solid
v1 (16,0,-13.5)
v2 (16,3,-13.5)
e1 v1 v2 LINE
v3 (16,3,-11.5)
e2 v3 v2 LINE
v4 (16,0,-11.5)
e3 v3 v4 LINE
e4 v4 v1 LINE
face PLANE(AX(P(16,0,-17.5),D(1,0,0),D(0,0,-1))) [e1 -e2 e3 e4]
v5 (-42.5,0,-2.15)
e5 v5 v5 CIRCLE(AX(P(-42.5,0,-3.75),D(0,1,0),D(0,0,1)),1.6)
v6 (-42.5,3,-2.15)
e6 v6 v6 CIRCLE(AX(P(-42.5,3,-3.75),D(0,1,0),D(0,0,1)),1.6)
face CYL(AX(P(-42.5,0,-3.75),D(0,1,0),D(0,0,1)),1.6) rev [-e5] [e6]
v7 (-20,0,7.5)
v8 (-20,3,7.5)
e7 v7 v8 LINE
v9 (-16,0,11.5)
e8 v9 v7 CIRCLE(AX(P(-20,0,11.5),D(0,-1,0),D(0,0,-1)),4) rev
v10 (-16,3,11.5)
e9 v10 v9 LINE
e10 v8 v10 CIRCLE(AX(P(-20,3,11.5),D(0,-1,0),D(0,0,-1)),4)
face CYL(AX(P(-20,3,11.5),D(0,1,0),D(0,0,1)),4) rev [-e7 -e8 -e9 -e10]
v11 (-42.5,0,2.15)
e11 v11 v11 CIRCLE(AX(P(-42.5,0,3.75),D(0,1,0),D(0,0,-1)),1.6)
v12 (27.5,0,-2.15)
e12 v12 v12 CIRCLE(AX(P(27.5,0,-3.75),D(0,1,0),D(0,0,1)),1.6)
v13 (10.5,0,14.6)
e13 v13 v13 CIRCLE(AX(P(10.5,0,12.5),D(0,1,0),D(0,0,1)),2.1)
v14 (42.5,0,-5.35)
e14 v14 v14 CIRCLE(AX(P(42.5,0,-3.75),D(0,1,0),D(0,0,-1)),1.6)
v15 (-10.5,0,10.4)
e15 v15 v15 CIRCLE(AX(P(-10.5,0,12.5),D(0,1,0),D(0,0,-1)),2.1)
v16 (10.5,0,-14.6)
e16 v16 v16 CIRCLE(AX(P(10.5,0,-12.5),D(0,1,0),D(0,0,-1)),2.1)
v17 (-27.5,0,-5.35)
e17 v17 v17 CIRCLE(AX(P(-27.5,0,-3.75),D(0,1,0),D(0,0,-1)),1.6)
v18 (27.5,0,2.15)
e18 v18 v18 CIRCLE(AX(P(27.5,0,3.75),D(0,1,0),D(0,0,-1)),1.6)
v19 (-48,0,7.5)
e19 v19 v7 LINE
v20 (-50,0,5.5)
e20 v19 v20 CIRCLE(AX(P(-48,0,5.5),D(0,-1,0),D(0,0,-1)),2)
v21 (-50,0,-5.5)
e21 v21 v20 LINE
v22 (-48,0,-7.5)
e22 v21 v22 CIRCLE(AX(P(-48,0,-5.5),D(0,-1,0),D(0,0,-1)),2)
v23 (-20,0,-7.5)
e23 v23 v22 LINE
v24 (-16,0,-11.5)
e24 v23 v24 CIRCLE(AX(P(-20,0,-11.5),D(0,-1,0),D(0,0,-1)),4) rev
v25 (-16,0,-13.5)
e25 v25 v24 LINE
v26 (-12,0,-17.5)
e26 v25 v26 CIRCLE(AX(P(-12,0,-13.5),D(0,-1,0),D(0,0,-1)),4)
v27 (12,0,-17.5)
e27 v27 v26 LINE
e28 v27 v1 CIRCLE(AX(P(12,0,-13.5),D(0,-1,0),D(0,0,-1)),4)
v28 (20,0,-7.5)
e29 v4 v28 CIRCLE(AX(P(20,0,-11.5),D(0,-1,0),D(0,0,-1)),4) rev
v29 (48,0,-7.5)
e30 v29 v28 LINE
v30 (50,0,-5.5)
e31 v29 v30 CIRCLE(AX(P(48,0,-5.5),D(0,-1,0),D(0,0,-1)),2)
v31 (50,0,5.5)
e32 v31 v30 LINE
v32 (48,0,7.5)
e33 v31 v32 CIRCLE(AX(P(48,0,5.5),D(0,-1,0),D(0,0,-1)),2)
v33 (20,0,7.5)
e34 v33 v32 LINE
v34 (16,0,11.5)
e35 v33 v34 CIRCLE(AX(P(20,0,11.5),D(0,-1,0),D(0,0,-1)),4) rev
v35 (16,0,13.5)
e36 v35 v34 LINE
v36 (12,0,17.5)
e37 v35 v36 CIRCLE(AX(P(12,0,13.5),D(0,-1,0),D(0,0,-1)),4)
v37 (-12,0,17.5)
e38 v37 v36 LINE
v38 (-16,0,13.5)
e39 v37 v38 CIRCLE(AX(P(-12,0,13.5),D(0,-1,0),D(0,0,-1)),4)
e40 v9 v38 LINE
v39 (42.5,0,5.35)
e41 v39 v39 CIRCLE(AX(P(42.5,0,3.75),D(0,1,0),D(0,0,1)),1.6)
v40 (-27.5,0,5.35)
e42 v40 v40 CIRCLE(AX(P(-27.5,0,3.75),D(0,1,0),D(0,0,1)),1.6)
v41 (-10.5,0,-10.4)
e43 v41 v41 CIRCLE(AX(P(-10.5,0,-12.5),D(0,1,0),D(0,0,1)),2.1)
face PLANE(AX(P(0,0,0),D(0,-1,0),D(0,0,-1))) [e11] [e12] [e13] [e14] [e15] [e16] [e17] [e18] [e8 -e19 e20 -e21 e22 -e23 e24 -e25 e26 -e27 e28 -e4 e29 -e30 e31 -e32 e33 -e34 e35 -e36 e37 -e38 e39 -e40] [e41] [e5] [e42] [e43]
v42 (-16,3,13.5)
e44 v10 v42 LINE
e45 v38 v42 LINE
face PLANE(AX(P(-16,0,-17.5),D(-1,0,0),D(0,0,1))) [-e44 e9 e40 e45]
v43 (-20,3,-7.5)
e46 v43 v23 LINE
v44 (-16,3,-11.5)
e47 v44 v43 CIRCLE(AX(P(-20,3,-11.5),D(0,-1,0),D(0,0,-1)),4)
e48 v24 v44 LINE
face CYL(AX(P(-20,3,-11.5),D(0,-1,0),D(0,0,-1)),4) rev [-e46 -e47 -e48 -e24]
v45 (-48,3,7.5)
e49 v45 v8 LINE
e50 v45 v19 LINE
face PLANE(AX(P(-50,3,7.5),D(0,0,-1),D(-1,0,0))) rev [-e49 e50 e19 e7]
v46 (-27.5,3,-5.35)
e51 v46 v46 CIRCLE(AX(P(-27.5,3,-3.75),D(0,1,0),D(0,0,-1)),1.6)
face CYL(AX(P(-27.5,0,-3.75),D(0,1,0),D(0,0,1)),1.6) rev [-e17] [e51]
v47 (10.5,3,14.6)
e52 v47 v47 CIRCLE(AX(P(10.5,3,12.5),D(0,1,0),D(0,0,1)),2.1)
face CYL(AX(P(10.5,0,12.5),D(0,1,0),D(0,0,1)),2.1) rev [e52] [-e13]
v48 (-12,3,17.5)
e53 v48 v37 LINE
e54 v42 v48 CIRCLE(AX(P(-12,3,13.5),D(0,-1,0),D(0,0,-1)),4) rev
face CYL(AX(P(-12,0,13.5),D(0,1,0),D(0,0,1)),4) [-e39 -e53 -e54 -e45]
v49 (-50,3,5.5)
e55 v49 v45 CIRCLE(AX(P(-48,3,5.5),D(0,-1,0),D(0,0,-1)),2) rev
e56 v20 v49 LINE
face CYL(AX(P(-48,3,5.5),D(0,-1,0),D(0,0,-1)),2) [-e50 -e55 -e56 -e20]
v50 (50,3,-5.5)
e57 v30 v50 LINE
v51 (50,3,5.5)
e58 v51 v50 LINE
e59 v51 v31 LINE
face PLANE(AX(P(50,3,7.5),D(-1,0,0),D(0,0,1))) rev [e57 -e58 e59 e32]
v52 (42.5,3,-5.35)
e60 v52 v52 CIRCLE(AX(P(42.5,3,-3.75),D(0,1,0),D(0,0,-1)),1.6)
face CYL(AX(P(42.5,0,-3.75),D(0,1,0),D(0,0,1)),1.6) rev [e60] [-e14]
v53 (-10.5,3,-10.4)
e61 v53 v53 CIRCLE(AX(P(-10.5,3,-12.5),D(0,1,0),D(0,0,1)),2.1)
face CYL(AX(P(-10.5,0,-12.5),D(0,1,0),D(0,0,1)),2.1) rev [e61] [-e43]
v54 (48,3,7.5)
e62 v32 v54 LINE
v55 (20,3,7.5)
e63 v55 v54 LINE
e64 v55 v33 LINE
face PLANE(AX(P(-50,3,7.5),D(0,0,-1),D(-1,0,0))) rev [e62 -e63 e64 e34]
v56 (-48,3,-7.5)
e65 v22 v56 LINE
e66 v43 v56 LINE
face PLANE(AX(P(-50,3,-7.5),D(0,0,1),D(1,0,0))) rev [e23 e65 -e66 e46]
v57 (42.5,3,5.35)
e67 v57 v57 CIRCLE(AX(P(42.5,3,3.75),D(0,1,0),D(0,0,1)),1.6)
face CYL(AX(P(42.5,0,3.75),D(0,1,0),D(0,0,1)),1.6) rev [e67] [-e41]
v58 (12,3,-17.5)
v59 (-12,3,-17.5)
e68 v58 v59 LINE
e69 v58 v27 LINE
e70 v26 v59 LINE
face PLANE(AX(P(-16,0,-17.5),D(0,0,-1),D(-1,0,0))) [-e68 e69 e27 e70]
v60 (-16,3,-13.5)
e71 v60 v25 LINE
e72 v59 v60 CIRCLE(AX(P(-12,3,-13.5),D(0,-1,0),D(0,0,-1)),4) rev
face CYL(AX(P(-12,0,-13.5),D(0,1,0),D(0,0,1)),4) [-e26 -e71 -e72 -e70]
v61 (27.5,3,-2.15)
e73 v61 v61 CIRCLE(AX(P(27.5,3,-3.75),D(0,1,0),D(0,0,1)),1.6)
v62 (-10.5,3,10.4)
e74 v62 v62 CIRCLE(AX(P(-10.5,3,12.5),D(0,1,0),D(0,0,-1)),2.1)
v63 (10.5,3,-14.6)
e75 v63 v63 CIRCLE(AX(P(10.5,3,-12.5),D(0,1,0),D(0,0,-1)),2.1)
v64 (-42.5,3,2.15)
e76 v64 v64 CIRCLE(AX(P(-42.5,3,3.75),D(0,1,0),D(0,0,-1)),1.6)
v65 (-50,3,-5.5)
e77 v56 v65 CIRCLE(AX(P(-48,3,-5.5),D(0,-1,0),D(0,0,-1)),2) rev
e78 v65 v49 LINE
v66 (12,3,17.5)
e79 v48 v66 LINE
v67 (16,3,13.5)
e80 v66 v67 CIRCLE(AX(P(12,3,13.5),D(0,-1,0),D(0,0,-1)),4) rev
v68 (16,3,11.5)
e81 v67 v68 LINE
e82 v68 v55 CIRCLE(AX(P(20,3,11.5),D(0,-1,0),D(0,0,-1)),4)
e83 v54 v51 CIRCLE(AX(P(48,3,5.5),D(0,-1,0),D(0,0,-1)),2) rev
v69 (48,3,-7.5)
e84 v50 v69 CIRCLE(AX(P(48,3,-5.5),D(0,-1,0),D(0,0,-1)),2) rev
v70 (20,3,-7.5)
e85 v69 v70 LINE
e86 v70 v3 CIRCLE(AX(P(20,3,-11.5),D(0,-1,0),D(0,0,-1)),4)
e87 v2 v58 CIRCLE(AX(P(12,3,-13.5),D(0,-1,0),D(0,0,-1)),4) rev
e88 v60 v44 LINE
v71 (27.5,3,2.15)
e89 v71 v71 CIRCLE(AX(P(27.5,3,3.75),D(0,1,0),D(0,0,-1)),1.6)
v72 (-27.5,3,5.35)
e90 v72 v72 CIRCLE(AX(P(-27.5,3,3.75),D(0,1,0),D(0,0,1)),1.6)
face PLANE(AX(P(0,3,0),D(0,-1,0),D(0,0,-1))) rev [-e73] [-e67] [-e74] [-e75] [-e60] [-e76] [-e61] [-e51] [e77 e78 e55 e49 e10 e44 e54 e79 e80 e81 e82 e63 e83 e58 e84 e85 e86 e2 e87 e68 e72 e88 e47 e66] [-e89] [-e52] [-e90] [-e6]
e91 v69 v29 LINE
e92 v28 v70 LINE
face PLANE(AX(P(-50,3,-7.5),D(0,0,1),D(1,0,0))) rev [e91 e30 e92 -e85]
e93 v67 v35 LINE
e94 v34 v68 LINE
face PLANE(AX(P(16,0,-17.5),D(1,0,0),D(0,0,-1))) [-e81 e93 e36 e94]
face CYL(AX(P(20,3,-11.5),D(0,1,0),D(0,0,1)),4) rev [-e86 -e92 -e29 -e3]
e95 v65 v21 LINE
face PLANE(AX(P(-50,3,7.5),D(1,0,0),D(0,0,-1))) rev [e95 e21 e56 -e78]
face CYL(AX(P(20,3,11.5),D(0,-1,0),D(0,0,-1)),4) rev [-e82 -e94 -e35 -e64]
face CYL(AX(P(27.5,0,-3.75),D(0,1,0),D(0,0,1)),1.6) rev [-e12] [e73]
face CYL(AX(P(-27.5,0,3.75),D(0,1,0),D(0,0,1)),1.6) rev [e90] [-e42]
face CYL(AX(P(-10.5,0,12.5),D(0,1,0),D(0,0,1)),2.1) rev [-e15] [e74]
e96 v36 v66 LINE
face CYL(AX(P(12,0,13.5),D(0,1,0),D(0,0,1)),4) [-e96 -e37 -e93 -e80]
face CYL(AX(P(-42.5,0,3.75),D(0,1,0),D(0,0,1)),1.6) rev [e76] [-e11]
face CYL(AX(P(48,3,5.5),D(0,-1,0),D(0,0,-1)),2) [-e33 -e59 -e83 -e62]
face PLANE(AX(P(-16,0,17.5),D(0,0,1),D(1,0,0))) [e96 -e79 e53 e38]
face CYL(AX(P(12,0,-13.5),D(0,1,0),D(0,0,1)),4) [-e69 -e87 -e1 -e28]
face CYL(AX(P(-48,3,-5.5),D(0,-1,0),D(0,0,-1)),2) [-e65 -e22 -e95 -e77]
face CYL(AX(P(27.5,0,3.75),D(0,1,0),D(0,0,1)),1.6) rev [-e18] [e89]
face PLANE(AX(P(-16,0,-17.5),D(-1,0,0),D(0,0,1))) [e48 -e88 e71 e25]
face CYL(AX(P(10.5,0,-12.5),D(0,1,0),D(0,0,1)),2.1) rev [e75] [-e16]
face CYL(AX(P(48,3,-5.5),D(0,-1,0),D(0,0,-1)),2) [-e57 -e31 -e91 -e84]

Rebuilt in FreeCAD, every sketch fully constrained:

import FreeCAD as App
import Part
import Sketcher


def edges_at(feature, points):
    """Names of the edges that pass closest to the given points."""
    edges = feature.Shape.Edges
    near = lambda p: min(range(len(edges)), key=lambda i: edges[i].distToShape(Part.Vertex(*p))[0])
    return sorted({f"Edge{near(p) + 1}" for p in points})


def add_polygon(sketch, points):
    """Adds a closed chain of lines whose ends are joined by coincident constraints."""
    first, n = sketch.GeometryCount, len(points)
    for a, b in zip(points, points[1:] + points[:1]):
        sketch.addGeometry(Part.LineSegment(App.Vector(*a, 0), App.Vector(*b, 0)), False)
    for i in range(n):
        sketch.addConstraint(Sketcher.Constraint("Coincident", first + i, 2, first + (i + 1) % n, 1))

doc = App.newDocument("Part")
body = doc.addObject("PartDesign::Body", "Body")

sketch1 = body.newObject("Sketcher::SketchObject", "Sketch")
sketch1.AttachmentSupport = (doc.getObject("XZ_Plane"), [""])
sketch1.MapMode = "FlatFace"
add_polygon(sketch1, [(-50, -8), (-50, 8), (50, 8), (50, -8)])
sketch1.addConstraint([
    Sketcher.Constraint("Vertical", 0),
    Sketcher.Constraint("Horizontal", 1),
    Sketcher.Constraint("Vertical", 2),
    Sketcher.Constraint("Horizontal", 3),
    Sketcher.Constraint("Symmetric", 0, 2, 2, 2, -1, 1),
    Sketcher.Constraint("DistanceX", 1, 1, 1, 2, 100.0),
    Sketcher.Constraint("DistanceY", 0, 1, 0, 2, 15.0),
])
pad1 = body.newObject("PartDesign::Pad", "Pad")
pad1.Profile = sketch1
pad1.Length = 3
pad1.Reversed = True

sketch2 = body.newObject("Sketcher::SketchObject", "Sketch001")
sketch2.AttachmentSupport = (doc.getObject("XZ_Plane"), [""])
sketch2.MapMode = "FlatFace"
sketch2.AttachmentOffset = App.Placement(App.Vector(0, 0, -3), App.Rotation())
add_polygon(sketch2, [(-16, -18), (-16, 18), (16, 18), (16, -18)])
sketch2.addConstraint([
    Sketcher.Constraint("Vertical", 0),
    Sketcher.Constraint("Horizontal", 1),
    Sketcher.Constraint("Vertical", 2),
    Sketcher.Constraint("Horizontal", 3),
    Sketcher.Constraint("Symmetric", 0, 2, 2, 2, -1, 1),
    Sketcher.Constraint("DistanceX", 1, 1, 1, 2, 32.0),
    Sketcher.Constraint("DistanceY", 0, 1, 0, 2, 35.0),
])
pad2 = body.newObject("PartDesign::Pad", "Pad001")
pad2.Profile = sketch2
pad2.Length = 3

sketch3 = body.newObject("Sketcher::SketchObject", "Sketch002")
sketch3.AttachmentSupport = (doc.getObject("XZ_Plane"), [""])
sketch3.MapMode = "FlatFace"
sketch3.AttachmentOffset = App.Placement(App.Vector(0, 0, -3), App.Rotation())
sketch3.addGeometry([
    Part.Circle(App.Vector(-42.5, -3.8, 0), App.Vector(0, 0, 1), 1.6),
    Part.Circle(App.Vector(-42.5, 3.8, 0), App.Vector(0, 0, 1), 1.6),
    Part.Circle(App.Vector(-27.5, 3.8, 0), App.Vector(0, 0, 1), 1.6),
    Part.Circle(App.Vector(-27.5, -3.8, 0), App.Vector(0, 0, 1), 1.6),
    Part.Circle(App.Vector(42.5, 3.8, 0), App.Vector(0, 0, 1), 1.6),
    Part.Circle(App.Vector(42.5, -3.8, 0), App.Vector(0, 0, 1), 1.6),
    Part.Circle(App.Vector(27.5, 3.8, 0), App.Vector(0, 0, 1), 1.6),
    Part.Circle(App.Vector(27.5, -3.8, 0), App.Vector(0, 0, 1), 1.6),
], False)
sketch3.addConstraint([
    Sketcher.Constraint("Equal", 0, 1),
    Sketcher.Constraint("Equal", 1, 2),
    Sketcher.Constraint("Equal", 2, 3),
    Sketcher.Constraint("Equal", 3, 4),
    Sketcher.Constraint("Equal", 4, 5),
    Sketcher.Constraint("Equal", 5, 6),
    Sketcher.Constraint("Equal", 6, 7),
    Sketcher.Constraint("Symmetric", 0, 3, 4, 3, -1, 1),
    Sketcher.Constraint("Symmetric", 1, 3, 5, 3, -1, 1),
    Sketcher.Constraint("Symmetric", 3, 3, 6, 3, -1, 1),
    Sketcher.Constraint("Symmetric", 2, 3, 7, 3, -1, 1),
    Sketcher.Constraint("Symmetric", 1, 3, 4, 3, -2),
    Sketcher.Constraint("Symmetric", 2, 3, 6, 3, -2),
    Sketcher.Constraint("Horizontal", 1, 3, 2, 3),
    Sketcher.Constraint("Diameter", 0, 3.2),
    Sketcher.Constraint("DistanceX", 1, 3, 2, 3, 15.0),
    Sketcher.Constraint("DistanceX", 2, 3, 4, 3, 70.0),
    Sketcher.Constraint("DistanceY", 0, 3, 1, 3, 7.5),
])
pocket1 = body.newObject("PartDesign::Pocket", "Pocket")
pocket1.Profile = sketch3
pocket1.Type = "ThroughAll"
pocket1.Reversed = True

sketch4 = body.newObject("Sketcher::SketchObject", "Sketch003")
sketch4.AttachmentSupport = (doc.getObject("XZ_Plane"), [""])
sketch4.MapMode = "FlatFace"
sketch4.AttachmentOffset = App.Placement(App.Vector(0, 0, -3), App.Rotation())
sketch4.addGeometry([
    Part.Circle(App.Vector(-10.5, -12.5, 0), App.Vector(0, 0, 1), 2.1),
    Part.Circle(App.Vector(-10.5, 12.5, 0), App.Vector(0, 0, 1), 2.1),
    Part.Circle(App.Vector(10.5, 12.5, 0), App.Vector(0, 0, 1), 2.1),
    Part.Circle(App.Vector(10.5, -12.5, 0), App.Vector(0, 0, 1), 2.1),
], False)
sketch4.addConstraint([
    Sketcher.Constraint("Equal", 0, 1),
    Sketcher.Constraint("Equal", 1, 2),
    Sketcher.Constraint("Equal", 2, 3),
    Sketcher.Constraint("Symmetric", 0, 3, 2, 3, -1, 1),
    Sketcher.Constraint("Symmetric", 1, 3, 3, 3, -1, 1),
    Sketcher.Constraint("Symmetric", 1, 3, 2, 3, -2),
    Sketcher.Constraint("Diameter", 0, 4.2),
    Sketcher.Constraint("DistanceY", 0, 3, 1, 3, 25.0),
    Sketcher.Constraint("DistanceX", 1, 3, 2, 3, 21.0),
])
pocket2 = body.newObject("PartDesign::Pocket", "Pocket001")
pocket2.Profile = sketch4
pocket2.Type = "ThroughAll"
pocket2.Reversed = True
doc.recompute()

fillet = body.newObject("PartDesign::Fillet", "Fillet")
fillet.Base = (pocket2, edges_at(pocket2, [
    (-16, 1.5, 17.5),
    (16, 1.5, -17.5),
    (-16, 1.5, -7.5),
    (-16, 1.5, 7.5),
    (-16, 1.5, -17.5),
    (16, 1.5, -7.5),
    (16, 1.5, 7.5),
    (16, 1.5, 17.5),
]))
fillet.Radius = 4
doc.recompute()

fillet2 = body.newObject("PartDesign::Fillet", "Fillet001")
fillet2.Base = (fillet, edges_at(fillet, [
    (50, 1.5, 7.5),
    (-50, 1.5, 7.5),
    (-50, 1.5, -7.5),
    (50, 1.5, -7.5),
]))
fillet2.Radius = 2

doc.recompute()
